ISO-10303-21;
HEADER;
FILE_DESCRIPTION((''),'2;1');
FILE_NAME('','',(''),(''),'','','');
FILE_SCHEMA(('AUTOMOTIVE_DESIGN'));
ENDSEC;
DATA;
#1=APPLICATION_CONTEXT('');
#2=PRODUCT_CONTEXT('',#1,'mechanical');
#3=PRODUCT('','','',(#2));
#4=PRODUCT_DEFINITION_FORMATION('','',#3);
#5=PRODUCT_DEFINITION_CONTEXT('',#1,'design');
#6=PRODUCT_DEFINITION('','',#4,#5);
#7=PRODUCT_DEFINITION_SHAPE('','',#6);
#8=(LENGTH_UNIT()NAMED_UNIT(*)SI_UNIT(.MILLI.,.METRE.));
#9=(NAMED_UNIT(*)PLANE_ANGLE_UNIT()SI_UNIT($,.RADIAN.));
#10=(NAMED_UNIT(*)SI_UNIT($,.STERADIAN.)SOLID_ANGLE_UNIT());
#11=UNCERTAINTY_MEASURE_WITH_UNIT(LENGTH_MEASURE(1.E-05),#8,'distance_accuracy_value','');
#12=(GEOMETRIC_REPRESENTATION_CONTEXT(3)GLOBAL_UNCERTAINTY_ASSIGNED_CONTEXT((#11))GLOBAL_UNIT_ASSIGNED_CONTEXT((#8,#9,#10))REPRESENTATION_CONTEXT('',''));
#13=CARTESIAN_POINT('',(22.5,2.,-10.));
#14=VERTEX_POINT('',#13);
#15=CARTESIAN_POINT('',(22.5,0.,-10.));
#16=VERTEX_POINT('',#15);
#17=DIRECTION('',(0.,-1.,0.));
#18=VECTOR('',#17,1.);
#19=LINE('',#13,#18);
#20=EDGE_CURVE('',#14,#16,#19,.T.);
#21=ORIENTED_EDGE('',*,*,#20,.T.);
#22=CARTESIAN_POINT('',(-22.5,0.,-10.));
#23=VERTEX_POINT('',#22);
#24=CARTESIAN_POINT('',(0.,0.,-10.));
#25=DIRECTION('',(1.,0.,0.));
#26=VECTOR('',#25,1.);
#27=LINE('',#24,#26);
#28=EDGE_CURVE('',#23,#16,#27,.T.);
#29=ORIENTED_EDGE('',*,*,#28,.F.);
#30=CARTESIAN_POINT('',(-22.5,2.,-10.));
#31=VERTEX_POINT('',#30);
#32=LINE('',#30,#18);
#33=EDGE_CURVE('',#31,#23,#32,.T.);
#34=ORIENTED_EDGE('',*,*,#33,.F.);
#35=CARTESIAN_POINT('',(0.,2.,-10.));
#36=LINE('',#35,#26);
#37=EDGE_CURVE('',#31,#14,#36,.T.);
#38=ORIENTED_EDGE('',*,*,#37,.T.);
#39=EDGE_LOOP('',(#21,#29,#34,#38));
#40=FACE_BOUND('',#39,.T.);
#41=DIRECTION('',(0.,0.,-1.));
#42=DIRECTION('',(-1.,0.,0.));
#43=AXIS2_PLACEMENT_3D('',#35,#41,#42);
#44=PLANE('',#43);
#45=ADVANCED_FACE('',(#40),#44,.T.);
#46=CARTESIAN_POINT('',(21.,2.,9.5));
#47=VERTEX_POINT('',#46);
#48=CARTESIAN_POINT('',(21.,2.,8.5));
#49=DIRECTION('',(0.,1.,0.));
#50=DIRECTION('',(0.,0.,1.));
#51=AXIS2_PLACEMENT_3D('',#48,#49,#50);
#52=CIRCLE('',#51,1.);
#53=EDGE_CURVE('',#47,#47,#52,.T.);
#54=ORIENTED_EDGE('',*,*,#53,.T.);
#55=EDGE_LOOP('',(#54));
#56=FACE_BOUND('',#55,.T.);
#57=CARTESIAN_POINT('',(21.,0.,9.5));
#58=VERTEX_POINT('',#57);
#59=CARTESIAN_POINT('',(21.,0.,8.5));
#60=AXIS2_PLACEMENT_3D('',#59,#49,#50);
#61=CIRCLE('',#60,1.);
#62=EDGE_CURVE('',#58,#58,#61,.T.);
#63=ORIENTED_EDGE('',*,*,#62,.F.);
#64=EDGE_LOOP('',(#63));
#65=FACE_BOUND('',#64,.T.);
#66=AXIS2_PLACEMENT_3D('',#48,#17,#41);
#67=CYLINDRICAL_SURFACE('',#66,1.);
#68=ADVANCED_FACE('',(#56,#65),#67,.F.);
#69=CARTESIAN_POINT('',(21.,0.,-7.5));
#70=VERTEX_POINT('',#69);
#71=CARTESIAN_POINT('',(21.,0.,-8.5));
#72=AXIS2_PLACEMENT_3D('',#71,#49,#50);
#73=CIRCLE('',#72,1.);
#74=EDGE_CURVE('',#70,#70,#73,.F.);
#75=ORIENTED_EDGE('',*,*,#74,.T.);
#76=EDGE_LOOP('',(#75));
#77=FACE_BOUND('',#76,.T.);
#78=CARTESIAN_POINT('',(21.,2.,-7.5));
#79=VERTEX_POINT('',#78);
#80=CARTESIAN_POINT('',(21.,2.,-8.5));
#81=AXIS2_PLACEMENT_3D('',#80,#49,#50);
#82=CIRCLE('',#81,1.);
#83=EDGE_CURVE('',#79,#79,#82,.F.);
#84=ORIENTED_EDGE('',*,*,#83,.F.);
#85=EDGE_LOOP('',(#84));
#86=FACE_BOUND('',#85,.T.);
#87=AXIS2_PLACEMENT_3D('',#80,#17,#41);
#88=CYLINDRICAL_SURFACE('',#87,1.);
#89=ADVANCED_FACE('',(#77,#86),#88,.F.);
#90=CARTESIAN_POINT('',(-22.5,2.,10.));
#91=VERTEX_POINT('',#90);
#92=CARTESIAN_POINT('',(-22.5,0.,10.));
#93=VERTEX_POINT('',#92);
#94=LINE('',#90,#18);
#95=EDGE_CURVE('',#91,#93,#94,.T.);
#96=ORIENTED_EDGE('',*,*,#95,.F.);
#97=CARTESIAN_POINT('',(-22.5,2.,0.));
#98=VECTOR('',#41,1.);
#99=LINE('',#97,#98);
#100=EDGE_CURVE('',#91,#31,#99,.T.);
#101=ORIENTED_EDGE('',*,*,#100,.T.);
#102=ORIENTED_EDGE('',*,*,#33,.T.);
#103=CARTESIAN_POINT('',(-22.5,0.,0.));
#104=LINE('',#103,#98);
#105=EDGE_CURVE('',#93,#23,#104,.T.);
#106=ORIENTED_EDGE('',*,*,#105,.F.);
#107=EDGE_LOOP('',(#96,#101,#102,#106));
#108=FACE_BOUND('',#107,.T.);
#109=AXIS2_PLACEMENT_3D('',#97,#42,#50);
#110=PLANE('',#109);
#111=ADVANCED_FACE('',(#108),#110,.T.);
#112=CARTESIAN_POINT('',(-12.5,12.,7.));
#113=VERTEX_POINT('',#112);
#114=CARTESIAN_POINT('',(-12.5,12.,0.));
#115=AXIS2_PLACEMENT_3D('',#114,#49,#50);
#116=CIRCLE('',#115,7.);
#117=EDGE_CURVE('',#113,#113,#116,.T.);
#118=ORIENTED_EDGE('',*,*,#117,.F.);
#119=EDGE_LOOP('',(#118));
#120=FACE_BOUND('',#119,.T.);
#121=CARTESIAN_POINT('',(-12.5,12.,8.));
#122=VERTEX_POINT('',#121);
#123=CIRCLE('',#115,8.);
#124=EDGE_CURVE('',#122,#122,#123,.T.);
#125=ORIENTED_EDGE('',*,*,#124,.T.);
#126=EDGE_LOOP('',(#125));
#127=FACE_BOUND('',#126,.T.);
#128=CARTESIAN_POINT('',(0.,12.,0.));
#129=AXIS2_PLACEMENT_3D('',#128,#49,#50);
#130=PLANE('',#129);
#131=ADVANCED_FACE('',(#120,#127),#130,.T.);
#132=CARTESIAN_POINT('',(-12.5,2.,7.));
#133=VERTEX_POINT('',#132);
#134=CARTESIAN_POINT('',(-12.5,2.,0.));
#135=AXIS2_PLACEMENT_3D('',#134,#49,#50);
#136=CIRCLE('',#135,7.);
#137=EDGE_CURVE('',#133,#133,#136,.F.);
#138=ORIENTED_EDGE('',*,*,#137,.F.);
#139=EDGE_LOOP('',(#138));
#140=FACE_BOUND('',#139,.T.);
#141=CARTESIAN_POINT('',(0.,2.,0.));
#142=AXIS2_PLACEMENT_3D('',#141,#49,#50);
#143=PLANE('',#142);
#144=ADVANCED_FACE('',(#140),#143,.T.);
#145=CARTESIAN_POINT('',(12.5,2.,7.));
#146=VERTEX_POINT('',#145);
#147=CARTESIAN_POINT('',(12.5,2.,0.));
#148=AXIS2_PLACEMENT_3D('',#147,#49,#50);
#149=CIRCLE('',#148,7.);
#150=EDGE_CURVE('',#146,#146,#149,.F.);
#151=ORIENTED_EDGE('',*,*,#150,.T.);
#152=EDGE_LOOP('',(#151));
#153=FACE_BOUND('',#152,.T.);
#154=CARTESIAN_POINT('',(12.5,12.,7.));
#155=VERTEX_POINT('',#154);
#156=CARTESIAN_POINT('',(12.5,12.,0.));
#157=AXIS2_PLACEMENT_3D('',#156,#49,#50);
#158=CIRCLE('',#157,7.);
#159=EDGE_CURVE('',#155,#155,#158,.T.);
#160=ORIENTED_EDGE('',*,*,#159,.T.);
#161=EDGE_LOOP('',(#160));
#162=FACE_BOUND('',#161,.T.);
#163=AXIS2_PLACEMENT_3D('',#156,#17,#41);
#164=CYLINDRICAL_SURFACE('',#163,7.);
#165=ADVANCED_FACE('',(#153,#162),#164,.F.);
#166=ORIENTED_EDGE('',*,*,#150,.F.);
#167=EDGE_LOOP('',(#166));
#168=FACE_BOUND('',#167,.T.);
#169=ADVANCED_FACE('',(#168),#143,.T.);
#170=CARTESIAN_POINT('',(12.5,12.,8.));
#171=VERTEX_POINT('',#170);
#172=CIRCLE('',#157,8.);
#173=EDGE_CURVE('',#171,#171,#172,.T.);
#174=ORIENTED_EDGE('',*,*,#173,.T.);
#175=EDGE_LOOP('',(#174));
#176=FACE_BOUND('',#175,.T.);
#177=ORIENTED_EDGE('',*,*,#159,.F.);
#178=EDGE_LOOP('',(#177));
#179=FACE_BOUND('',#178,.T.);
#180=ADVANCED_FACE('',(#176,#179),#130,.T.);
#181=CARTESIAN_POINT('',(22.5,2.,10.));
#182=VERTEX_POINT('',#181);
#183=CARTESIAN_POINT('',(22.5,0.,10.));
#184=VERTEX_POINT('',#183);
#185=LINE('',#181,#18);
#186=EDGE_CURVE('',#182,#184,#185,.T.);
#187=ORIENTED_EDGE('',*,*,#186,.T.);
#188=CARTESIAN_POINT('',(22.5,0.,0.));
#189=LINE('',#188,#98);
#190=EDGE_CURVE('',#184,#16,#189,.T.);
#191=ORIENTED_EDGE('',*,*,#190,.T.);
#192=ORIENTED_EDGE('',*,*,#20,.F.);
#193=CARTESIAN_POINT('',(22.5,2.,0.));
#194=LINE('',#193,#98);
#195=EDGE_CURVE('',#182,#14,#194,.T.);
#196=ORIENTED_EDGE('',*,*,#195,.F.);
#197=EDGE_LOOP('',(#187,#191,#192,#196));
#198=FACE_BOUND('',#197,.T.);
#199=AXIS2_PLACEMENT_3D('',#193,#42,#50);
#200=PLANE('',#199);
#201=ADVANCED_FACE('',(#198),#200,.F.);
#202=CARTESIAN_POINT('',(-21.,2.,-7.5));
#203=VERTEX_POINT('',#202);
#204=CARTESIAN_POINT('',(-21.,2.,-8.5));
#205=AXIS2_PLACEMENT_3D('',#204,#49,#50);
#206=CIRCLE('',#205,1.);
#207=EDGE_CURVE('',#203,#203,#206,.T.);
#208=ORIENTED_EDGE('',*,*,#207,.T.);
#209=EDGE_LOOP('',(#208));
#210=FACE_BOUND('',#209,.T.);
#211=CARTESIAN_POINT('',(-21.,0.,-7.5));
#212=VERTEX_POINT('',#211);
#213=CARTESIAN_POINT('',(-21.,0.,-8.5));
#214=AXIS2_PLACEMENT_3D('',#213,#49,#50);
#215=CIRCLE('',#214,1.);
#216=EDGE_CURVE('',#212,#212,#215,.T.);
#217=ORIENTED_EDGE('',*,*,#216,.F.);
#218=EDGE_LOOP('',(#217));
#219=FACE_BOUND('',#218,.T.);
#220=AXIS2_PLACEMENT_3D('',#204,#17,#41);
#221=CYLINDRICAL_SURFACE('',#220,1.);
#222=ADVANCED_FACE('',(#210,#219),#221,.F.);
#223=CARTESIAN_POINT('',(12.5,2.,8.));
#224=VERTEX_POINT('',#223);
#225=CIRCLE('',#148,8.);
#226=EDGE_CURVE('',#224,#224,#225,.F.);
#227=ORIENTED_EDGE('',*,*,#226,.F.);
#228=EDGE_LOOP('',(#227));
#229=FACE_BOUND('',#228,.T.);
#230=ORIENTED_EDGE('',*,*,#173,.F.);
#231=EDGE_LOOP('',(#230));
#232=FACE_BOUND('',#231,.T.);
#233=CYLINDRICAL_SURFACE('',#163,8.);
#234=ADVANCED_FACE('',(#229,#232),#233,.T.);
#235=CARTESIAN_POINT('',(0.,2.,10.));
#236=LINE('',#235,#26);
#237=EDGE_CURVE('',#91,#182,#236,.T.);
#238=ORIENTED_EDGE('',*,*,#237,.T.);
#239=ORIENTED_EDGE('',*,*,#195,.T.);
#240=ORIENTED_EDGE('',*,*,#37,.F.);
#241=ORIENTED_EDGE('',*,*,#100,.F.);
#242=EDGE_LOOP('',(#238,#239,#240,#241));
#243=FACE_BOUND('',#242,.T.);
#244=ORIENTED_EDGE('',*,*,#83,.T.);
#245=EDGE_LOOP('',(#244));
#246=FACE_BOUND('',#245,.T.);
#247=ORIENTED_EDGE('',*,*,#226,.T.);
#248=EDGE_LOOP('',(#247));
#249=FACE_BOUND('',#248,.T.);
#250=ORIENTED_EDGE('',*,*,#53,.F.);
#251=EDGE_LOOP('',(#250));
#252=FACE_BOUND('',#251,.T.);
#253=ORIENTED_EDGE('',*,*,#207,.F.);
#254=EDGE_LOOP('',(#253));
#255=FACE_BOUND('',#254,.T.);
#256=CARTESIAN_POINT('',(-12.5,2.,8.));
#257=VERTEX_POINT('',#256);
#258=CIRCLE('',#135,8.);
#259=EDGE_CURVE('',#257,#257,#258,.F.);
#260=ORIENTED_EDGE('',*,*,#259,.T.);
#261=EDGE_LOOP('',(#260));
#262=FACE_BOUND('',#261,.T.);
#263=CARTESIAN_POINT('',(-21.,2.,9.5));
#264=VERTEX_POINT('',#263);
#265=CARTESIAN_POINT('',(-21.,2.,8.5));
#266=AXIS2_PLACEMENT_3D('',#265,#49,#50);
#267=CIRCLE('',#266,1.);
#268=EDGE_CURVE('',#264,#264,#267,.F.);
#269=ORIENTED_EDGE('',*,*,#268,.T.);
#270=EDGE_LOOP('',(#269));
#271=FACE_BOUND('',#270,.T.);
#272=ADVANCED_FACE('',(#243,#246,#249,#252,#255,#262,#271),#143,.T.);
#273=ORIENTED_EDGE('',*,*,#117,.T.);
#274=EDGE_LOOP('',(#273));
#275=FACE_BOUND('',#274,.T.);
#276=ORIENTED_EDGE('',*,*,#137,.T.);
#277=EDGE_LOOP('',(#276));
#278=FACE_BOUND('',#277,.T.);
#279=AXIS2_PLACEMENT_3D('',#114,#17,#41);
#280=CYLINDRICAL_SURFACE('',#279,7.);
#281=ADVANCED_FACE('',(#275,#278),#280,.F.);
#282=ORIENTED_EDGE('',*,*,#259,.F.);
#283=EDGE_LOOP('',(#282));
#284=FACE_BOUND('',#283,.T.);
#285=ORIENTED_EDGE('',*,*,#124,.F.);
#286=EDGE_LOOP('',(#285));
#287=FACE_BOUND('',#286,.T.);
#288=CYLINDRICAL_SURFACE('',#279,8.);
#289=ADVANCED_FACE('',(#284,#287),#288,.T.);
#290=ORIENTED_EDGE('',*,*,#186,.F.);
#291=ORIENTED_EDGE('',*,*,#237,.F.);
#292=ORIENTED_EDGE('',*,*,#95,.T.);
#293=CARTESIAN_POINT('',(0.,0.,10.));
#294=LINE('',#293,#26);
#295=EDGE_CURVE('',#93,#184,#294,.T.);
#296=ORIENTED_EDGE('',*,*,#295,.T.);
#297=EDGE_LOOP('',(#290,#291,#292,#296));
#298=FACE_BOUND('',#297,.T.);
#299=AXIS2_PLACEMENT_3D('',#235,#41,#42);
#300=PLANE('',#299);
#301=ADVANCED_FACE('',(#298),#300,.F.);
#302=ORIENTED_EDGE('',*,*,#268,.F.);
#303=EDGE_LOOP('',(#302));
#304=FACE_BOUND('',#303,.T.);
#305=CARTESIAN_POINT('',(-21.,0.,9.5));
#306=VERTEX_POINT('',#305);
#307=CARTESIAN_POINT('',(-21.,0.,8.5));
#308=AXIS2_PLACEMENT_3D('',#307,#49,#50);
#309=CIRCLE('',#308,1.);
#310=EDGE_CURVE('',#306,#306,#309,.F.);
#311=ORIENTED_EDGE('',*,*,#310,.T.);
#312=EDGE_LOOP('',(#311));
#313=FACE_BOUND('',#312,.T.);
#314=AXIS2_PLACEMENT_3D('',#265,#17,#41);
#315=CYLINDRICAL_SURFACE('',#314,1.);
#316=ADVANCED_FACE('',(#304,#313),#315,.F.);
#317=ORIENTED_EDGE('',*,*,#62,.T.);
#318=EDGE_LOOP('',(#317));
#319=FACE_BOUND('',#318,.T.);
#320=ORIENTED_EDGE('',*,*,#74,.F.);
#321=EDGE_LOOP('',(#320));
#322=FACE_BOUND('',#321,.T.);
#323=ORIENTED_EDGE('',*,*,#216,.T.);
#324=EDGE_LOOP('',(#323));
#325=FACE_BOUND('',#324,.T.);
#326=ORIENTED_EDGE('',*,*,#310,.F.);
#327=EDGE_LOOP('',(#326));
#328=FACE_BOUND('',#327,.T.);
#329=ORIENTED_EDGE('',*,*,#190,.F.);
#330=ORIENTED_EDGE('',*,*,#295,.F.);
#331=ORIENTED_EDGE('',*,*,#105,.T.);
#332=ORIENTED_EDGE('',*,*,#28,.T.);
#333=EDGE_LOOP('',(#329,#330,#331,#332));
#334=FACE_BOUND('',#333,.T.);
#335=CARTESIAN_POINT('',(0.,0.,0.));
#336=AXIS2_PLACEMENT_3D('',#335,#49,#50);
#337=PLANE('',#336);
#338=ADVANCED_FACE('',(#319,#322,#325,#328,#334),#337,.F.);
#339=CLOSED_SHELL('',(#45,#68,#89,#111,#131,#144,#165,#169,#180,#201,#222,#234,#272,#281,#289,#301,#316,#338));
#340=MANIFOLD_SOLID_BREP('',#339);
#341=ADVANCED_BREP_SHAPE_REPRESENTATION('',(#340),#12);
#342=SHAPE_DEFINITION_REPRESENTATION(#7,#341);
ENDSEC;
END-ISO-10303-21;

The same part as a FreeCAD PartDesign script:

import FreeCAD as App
import Part
import Sketcher


def add_polygon(sketch, points):
    """Adds a closed chain of lines whose ends are joined by coincident constraints."""
    first, n = sketch.GeometryCount, len(points)
    for a, b in zip(points, points[1:] + points[:1]):
        sketch.addGeometry(Part.LineSegment(App.Vector(*a, 0), App.Vector(*b, 0)), False)
    for i in range(n):
        sketch.addConstraint(Sketcher.Constraint("Coincident", first + i, 2, first + (i + 1) % n, 1))

doc = App.newDocument("Part")
body = doc.addObject("PartDesign::Body", "Body")

# Sketch on XZ plane
sketch1 = body.newObject("Sketcher::SketchObject", "Sketch")
sketch1.AttachmentSupport = (doc.getObject("XZ_Plane"), [""])
sketch1.MapMode = "FlatFace"
add_polygon(sketch1, [(-22.5, -10), (-22.5, 10), (22.5, 10), (22.5, -10)])  # lines 0-3
sketch1.addGeometry(Part.Circle(App.Vector(-21, 8.5, 0), App.Vector(0, 0, 1), 1), False)  # 4
sketch1.addGeometry(Part.Circle(App.Vector(21, 8.5, 0), App.Vector(0, 0, 1), 1), False)  # 5
sketch1.addGeometry(Part.Circle(App.Vector(-21, -8.5, 0), App.Vector(0, 0, 1), 1), False)  # 6
sketch1.addGeometry(Part.Circle(App.Vector(21, -8.5, 0), App.Vector(0, 0, 1), 1), False)  # 7
sketch1.addConstraint([
    Sketcher.Constraint("Vertical", 0),
    Sketcher.Constraint("Horizontal", 1),
    Sketcher.Constraint("Vertical", 2),
    Sketcher.Constraint("Horizontal", 3),
    Sketcher.Constraint("Equal", 4, 5),
    Sketcher.Constraint("Equal", 5, 6),
    Sketcher.Constraint("Equal", 6, 7),
    Sketcher.Constraint("Symmetric", 5, 3, 6, 3, -1, 1),
    Sketcher.Constraint("Symmetric", 4, 3, 7, 3, -1, 1),
    Sketcher.Constraint("Symmetric", 0, 2, 2, 2, -1, 1),
    Sketcher.Constraint("Symmetric", 4, 3, 5, 3, -2),
    Sketcher.Constraint("Diameter", 4, 2.0),
    Sketcher.Constraint("DistanceX", 1, 1, 1, 2, 45.0),
    Sketcher.Constraint("DistanceY", 0, 1, 0, 2, 20.0),
    Sketcher.Constraint("DistanceX", 4, 3, -1, 1, 21.0),
    Sketcher.Constraint("DistanceY", 6, 3, 4, 3, 17.0),
])
pad1 = body.newObject("PartDesign::Pad", "Pad")
pad1.Profile = sketch1
pad1.Length = 2
pad1.Reversed = True

# Sketch on XZ plane
sketch2 = body.newObject("Sketcher::SketchObject", "Sketch001")
sketch2.AttachmentSupport = (doc.getObject("XZ_Plane"), [""])
sketch2.MapMode = "FlatFace"
sketch2.addGeometry([
    Part.Circle(App.Vector(-12.5, 0, 0), App.Vector(0, 0, 1), 8),
    Part.Circle(App.Vector(-12.5, 0, 0), App.Vector(0, 0, 1), 7),
    Part.Circle(App.Vector(12.5, 0, 0), App.Vector(0, 0, 1), 8),
    Part.Circle(App.Vector(12.5, 0, 0), App.Vector(0, 0, 1), 7),
], False)
sketch2.addConstraint([
    Sketcher.Constraint("Coincident", 1, 3, 0, 3),
    Sketcher.Constraint("Coincident", 3, 3, 2, 3),
    Sketcher.Constraint("Equal", 0, 2),
    Sketcher.Constraint("Equal", 1, 3),
    Sketcher.Constraint("Symmetric", 0, 3, 2, 3, -1, 1),
    Sketcher.Constraint("PointOnObject", 0, 3, -1),
    Sketcher.Constraint("Diameter", 0, 16.0),
    Sketcher.Constraint("Diameter", 1, 14.0),
    Sketcher.Constraint("DistanceX", 0, 3, 2, 3, 25.0),
])
pad2 = body.newObject("PartDesign::Pad", "Pad001")
pad2.Profile = sketch2
pad2.Length = 12
pad2.Reversed = True

doc.recompute()
